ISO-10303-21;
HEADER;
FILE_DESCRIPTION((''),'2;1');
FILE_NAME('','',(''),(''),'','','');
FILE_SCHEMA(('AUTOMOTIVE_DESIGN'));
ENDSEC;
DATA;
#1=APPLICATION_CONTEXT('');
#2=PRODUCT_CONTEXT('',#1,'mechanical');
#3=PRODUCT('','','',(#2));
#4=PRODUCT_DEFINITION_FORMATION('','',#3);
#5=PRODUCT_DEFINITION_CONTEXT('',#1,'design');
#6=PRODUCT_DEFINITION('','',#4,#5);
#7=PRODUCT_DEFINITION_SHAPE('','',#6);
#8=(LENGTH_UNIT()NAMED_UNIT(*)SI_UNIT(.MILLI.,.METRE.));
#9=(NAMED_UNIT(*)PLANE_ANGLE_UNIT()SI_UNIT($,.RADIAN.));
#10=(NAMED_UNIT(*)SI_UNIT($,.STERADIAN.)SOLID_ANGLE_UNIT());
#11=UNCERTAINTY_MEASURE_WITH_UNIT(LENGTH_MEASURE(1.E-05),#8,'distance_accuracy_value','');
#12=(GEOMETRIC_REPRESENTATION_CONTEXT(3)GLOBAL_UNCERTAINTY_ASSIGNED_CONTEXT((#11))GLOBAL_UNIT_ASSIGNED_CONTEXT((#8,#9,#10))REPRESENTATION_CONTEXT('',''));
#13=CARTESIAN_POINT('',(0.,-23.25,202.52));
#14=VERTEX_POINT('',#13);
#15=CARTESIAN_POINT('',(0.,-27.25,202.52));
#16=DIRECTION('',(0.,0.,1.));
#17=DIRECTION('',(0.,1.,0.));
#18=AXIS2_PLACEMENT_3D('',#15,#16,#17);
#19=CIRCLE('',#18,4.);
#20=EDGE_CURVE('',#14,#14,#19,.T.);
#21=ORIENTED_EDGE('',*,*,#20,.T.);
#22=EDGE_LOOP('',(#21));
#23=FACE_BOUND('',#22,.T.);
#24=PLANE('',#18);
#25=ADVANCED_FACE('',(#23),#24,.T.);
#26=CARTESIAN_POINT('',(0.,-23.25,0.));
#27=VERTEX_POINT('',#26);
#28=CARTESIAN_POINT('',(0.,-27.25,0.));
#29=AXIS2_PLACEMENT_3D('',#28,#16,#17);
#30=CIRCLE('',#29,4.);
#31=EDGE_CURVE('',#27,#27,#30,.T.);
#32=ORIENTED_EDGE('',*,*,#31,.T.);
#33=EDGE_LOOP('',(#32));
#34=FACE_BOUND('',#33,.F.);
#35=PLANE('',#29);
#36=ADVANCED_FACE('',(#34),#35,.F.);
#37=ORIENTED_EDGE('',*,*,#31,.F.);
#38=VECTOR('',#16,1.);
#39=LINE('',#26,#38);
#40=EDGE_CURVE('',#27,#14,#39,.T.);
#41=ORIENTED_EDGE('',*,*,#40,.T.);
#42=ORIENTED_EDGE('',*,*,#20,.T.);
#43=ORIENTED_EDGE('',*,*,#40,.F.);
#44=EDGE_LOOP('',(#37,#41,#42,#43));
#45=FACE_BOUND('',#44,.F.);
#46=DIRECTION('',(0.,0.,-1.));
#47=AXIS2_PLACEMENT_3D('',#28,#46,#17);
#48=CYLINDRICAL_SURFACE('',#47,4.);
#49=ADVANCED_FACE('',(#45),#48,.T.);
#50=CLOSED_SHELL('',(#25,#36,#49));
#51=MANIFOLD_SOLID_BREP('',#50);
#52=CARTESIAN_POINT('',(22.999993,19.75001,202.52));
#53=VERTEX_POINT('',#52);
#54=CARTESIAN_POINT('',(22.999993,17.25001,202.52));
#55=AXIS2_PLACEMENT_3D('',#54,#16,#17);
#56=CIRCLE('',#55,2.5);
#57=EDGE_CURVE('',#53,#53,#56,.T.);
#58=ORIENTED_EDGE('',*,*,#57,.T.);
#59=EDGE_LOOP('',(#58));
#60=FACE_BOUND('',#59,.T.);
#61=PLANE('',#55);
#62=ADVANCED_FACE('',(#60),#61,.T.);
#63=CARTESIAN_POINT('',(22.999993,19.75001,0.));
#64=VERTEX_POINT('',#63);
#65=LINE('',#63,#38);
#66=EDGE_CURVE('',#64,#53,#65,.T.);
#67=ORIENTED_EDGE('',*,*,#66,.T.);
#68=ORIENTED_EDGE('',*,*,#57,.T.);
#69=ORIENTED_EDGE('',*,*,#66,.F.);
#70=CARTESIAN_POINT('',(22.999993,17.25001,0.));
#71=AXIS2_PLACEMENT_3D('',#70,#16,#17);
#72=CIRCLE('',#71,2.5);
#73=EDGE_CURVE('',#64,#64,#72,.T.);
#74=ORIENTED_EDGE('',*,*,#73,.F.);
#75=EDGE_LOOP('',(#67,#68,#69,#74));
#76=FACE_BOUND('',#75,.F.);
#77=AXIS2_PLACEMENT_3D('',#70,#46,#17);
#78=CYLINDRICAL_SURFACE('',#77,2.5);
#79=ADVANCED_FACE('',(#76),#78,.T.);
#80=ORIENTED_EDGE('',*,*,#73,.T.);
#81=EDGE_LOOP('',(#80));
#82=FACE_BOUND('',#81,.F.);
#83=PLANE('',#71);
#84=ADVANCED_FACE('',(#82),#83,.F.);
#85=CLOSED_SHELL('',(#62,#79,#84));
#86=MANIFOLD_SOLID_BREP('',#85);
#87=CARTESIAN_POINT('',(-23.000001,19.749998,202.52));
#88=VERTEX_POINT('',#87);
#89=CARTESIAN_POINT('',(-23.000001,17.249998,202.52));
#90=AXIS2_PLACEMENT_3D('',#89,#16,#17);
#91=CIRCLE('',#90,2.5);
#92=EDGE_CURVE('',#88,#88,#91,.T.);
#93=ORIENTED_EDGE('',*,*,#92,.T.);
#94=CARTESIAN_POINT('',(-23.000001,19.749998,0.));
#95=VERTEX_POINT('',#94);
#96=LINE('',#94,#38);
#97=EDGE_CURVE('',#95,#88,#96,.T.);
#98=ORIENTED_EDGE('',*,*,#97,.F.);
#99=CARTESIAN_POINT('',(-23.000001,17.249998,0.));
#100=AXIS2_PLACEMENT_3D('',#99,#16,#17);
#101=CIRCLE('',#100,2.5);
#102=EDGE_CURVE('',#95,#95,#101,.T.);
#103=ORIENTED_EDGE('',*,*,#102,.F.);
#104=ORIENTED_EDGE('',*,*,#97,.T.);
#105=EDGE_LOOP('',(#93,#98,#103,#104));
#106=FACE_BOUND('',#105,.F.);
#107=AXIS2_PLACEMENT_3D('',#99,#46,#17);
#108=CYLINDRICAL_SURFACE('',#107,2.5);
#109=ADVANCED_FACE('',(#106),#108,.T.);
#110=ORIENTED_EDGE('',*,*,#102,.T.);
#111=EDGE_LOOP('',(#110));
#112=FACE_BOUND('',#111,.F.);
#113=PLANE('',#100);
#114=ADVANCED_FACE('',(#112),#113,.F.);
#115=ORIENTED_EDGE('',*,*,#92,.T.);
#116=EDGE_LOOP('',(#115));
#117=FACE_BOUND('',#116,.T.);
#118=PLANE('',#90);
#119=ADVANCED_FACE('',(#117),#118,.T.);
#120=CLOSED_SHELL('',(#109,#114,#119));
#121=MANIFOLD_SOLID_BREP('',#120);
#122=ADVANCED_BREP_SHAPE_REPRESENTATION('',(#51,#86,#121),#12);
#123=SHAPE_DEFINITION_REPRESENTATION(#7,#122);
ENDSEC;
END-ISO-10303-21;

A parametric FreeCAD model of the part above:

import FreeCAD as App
import Part
import Sketcher

doc = App.newDocument("Part")
body = doc.addObject("PartDesign::Body", "Body")
body.AllowCompound = True

# Sketch on XY plane
sketch1 = doc.addObject("Sketcher::SketchObject", "Sketch")
body.addObject(sketch1)
sketch1.AttachmentSupport = (doc.XY_Plane, [""])
sketch1.MapMode = "FlatFace"
sketch1.addGeometry(Part.Circle(App.Vector(0, -27.2, 0), App.Vector(0, 0, 1), 4), False)
sketch1.addGeometry(Part.Circle(App.Vector(-23, 17.2, 0), App.Vector(0, 0, 1), 2.5), False)
sketch1.addGeometry(Part.Circle(App.Vector(23, 17.3, 0), App.Vector(0, 0, 1), 2.5), False)
sketch1.addConstraint(Sketcher.Constraint("Equal", 1, 2))
sketch1.addConstraint(Sketcher.Constraint("PointOnObject", 0, 3, -2))
sketch1.addConstraint(Sketcher.Constraint("Diameter", 0, 8.0))
sketch1.addConstraint(Sketcher.Constraint("Diameter", 1, 5.0))
sketch1.addConstraint(Sketcher.Constraint("DistanceX", 1, 3, -1, 1, 23.000001))
sketch1.addConstraint(Sketcher.Constraint("DistanceY", 0, 3, 1, 3, 44.499998))
sketch1.addConstraint(Sketcher.Constraint("DistanceY", 0, 3, -1, 1, 27.25))
sketch1.addConstraint(Sketcher.Constraint("DistanceY", -1, 1, 2, 3, 17.25001))
sketch1.addConstraint(Sketcher.Constraint("DistanceX", -1, 1, 2, 3, 22.999993))
pad1 = doc.addObject("PartDesign::Pad", "Pad")
body.addObject(pad1)
pad1.Profile = sketch1
pad1.Length = 202.52

doc.recompute()
